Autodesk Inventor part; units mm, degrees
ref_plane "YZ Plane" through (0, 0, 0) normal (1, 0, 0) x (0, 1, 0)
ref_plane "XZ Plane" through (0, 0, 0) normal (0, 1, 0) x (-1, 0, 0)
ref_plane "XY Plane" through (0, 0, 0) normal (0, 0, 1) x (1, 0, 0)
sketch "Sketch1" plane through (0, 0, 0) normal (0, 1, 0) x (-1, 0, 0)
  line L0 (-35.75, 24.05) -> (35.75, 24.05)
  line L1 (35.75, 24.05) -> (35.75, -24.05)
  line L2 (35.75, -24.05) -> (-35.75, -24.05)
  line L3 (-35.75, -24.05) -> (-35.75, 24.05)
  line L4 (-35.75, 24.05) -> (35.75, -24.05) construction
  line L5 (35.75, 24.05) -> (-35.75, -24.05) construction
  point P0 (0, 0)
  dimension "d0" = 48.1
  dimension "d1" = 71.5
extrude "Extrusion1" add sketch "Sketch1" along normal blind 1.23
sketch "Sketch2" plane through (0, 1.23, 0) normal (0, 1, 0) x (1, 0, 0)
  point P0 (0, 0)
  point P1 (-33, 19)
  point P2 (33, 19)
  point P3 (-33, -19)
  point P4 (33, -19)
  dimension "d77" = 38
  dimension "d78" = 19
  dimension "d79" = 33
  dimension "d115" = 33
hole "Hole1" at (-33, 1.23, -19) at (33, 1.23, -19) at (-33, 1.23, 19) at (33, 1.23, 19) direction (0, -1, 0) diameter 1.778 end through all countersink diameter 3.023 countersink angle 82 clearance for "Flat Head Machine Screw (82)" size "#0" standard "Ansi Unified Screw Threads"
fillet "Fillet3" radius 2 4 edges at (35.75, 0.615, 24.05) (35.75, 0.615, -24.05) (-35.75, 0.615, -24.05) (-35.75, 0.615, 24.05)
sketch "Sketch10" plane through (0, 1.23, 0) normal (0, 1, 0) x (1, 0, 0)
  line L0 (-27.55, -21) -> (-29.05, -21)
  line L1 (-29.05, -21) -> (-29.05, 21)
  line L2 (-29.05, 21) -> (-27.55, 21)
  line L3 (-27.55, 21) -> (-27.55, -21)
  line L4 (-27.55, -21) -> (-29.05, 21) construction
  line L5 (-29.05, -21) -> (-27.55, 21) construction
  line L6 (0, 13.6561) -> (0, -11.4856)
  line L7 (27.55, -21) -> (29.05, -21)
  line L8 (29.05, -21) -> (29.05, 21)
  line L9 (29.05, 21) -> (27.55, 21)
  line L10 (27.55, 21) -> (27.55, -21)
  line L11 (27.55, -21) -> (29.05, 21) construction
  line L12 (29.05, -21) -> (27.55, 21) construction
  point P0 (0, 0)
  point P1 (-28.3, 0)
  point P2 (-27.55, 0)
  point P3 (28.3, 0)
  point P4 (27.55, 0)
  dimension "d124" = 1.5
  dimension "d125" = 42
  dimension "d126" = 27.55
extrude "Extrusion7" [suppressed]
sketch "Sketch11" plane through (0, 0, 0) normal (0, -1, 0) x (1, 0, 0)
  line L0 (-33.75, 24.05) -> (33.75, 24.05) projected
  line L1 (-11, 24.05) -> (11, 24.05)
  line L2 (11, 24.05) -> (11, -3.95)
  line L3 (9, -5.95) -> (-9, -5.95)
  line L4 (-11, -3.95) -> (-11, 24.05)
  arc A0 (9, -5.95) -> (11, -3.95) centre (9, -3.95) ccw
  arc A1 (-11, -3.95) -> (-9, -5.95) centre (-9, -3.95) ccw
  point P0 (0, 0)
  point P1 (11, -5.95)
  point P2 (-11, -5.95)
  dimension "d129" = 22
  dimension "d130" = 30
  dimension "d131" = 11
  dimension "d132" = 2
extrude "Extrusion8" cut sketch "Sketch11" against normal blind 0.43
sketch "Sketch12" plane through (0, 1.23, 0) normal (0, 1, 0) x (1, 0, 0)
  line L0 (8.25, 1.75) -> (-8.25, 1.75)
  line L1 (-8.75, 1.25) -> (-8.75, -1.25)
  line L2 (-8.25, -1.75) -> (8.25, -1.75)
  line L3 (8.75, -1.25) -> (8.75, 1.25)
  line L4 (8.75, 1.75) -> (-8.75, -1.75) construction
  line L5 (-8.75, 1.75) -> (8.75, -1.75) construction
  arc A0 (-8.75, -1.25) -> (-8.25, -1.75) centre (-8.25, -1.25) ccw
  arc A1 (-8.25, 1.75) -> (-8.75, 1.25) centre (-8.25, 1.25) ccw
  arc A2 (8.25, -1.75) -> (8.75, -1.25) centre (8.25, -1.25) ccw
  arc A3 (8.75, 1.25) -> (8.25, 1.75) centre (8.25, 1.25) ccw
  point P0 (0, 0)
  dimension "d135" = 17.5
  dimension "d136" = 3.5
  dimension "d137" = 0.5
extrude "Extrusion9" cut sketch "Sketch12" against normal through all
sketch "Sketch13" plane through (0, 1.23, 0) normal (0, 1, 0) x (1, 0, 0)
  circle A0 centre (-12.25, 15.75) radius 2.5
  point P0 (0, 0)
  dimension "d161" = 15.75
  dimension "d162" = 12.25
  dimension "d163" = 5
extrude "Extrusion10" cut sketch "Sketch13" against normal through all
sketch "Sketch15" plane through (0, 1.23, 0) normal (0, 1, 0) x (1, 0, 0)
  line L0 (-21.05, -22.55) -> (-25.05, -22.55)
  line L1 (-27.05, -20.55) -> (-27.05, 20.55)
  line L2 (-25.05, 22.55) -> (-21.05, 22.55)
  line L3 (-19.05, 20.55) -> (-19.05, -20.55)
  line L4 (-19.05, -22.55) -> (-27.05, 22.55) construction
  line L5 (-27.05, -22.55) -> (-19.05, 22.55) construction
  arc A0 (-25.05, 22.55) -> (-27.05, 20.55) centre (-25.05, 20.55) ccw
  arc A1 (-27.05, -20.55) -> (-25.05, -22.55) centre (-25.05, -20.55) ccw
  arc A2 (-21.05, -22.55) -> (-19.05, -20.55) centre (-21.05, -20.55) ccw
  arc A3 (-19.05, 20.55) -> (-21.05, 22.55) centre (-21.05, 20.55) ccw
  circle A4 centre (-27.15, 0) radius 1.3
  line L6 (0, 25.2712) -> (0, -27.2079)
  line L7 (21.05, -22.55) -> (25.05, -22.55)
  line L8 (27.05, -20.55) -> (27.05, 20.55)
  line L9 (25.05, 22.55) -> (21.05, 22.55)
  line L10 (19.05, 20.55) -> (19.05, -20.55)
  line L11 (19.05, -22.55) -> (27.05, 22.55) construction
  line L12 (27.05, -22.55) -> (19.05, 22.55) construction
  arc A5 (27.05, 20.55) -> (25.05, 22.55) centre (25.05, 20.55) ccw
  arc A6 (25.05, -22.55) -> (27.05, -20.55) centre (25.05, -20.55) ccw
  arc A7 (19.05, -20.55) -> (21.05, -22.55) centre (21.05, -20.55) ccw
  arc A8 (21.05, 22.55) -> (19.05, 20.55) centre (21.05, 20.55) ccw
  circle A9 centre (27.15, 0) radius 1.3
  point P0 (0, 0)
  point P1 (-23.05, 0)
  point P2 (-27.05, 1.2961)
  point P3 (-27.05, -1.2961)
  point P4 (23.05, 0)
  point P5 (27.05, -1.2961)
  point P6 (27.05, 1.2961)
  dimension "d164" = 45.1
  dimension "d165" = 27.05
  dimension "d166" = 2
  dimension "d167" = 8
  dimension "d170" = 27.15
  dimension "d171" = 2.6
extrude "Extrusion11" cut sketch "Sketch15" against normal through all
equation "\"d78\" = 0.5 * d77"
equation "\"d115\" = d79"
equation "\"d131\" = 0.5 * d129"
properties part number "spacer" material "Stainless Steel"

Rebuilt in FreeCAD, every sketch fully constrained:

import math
import FreeCAD as App
import Part
import Sketcher

V = App.Vector


def edges_at(feature, points):
    """Names of the edges that pass closest to the given points."""
    edges = feature.Shape.Edges
    near = lambda p: min(range(len(edges)), key=lambda i: edges[i].distToShape(Part.Vertex(*p))[0])
    return sorted({f"Edge{near(p) + 1}" for p in points})


def add_polygon(sketch, points):
    """Adds a closed chain of lines whose ends are joined by coincident constraints."""
    first, n = sketch.GeometryCount, len(points)
    for a, b in zip(points, points[1:] + points[:1]):
        sketch.addGeometry(Part.LineSegment(App.Vector(*a, 0), App.Vector(*b, 0)), False)
    for i in range(n):
        sketch.addConstraint(Sketcher.Constraint("Coincident", first + i, 2, first + (i + 1) % n, 1))

doc = App.newDocument("Part")
body = doc.addObject("PartDesign::Body", "Body")

# Sketch on XZ plane
sketch1 = body.newObject("Sketcher::SketchObject", "Sketch")
sketch1.AttachmentSupport = (doc.getObject("XZ_Plane"), [""])
sketch1.MapMode = "FlatFace"
add_polygon(sketch1, [(-35.75, 24.05), (35.75, 24.05), (35.75, -24.05), (-35.75, -24.05)])  # lines 0-3
sketch1.addConstraint(Sketcher.Constraint("Horizontal", 0))
sketch1.addConstraint(Sketcher.Constraint("Vertical", 1))
sketch1.addConstraint(Sketcher.Constraint("Horizontal", 2))
sketch1.addConstraint(Sketcher.Constraint("Vertical", 3))
sketch1.addConstraint(Sketcher.Constraint("Symmetric", 0, 2, 2, 2, -1, 1))
sketch1.addConstraint(Sketcher.Constraint("DistanceX", 0, 1, 0, 2, 71.5))
sketch1.addConstraint(Sketcher.Constraint("DistanceY", 1, 2, 1, 1, 48.1))
pad1 = body.newObject("PartDesign::Pad", "Pad")
pad1.Profile = sketch1
pad1.Length = 1.23
pad1.Reversed = True

# Sketch on XZ plane
sketch2 = body.newObject("Sketcher::SketchObject", "Sketch001")
sketch2.AttachmentSupport = (doc.getObject("XZ_Plane"), [""])
sketch2.MapMode = "FlatFace"
sketch2.AttachmentOffset = App.Placement(V(0, 0, -1.23), App.Rotation())
sketch2.addGeometry(Part.Circle(V(-33, -19, 0), V(0, 0, 1), 0.889), False)
sketch2.addGeometry(Part.Circle(V(33, -19, 0), V(0, 0, 1), 0.889), False)
sketch2.addGeometry(Part.Circle(V(-33, 19, 0), V(0, 0, 1), 0.889), False)
sketch2.addGeometry(Part.Circle(V(33, 19, 0), V(0, 0, 1), 0.889), False)
sketch2.addConstraint(Sketcher.Constraint("Equal", 0, 1))
sketch2.addConstraint(Sketcher.Constraint("Equal", 1, 2))
sketch2.addConstraint(Sketcher.Constraint("Equal", 2, 3))
sketch2.addConstraint(Sketcher.Constraint("Symmetric", 1, 3, 2, 3, -1, 1))
sketch2.addConstraint(Sketcher.Constraint("Symmetric", 0, 3, 3, 3, -1, 1))
sketch2.addConstraint(Sketcher.Constraint("Symmetric", 0, 3, 1, 3, -2))
sketch2.addConstraint(Sketcher.Constraint("Diameter", 0, 1.778))
sketch2.addConstraint(Sketcher.Constraint("DistanceX", 0, 3, -1, 1, 33.0))
sketch2.addConstraint(Sketcher.Constraint("DistanceY", 0, 3, -1, 1, 19.0))
doc.recompute()
hole = body.newObject("PartDesign::Hole", "Hole")
hole.Profile = sketch2
hole.ThreadType = "None"
hole.Diameter = 1.778
hole.DepthType = "ThroughAll"
hole.HoleCutType = "Countersink"
hole.HoleCutDiameter = 3.023
hole.HoleCutCountersinkAngle = 82
hole.Reversed = True
doc.recompute()

fillet = body.newObject("PartDesign::Fillet", "Fillet")
fillet.Base = (hole, edges_at(hole, [
    (35.75, 0.615, 24.05),
    (35.75, 0.615, -24.05),
    (-35.75, 0.615, -24.05),
    (-35.75, 0.615, 24.05),
]))
fillet.Radius = 2

# Sketch on XZ plane
sketch3 = body.newObject("Sketcher::SketchObject", "Sketch002")
sketch3.AttachmentSupport = (doc.getObject("XZ_Plane"), [""])
sketch3.MapMode = "FlatFace"
sketch3.addGeometry(Part.LineSegment(V(11, 24.05, 0), V(-11, 24.05, 0)), False)
sketch3.addGeometry(Part.LineSegment(V(-11, 24.05, 0), V(-11, -3.95, 0)), False)
sketch3.addGeometry(Part.ArcOfCircle(Part.Circle(V(-9, -3.95, 0), V(0, 0, 1), 2), math.radians(180), math.radians(270)), False)
sketch3.addGeometry(Part.LineSegment(V(-9, -5.95, 0), V(9, -5.95, 0)), False)
sketch3.addGeometry(Part.ArcOfCircle(Part.Circle(V(9, -3.95, 0), V(0, 0, 1), 2), math.radians(-90), math.radians(0)), False)
sketch3.addGeometry(Part.LineSegment(V(11, -3.95, 0), V(11, 24.05, 0)), False)
sketch3.addConstraint(Sketcher.Constraint("Coincident", 0, 2, 1, 1))
sketch3.addConstraint(Sketcher.Constraint("Tangent", 1, 2, 2, 1))
sketch3.addConstraint(Sketcher.Constraint("Tangent", 2, 2, 3, 1))
sketch3.addConstraint(Sketcher.Constraint("Tangent", 3, 2, 4, 1))
sketch3.addConstraint(Sketcher.Constraint("Tangent", 4, 2, 5, 1))
sketch3.addConstraint(Sketcher.Constraint("Coincident", 5, 2, 0, 1))
sketch3.addConstraint(Sketcher.Constraint("Horizontal", 0))
sketch3.addConstraint(Sketcher.Constraint("Vertical", 1))
sketch3.addConstraint(Sketcher.Constraint("Horizontal", 3))
sketch3.addConstraint(Sketcher.Constraint("Vertical", 5))
sketch3.addConstraint(Sketcher.Constraint("Equal", 2, 4))
sketch3.addConstraint(Sketcher.Constraint("Radius", 2, 2.0))
sketch3.addConstraint(Sketcher.Constraint("DistanceX", 0, 2, 0, 1, 22.0))
sketch3.addConstraint(Sketcher.Constraint("DistanceX", 0, 2, -1, 1, 11.0))
sketch3.addConstraint(Sketcher.Constraint("DistanceY", 2, 2, 0, 2, 30.0))
sketch3.addConstraint(Sketcher.Constraint("DistanceY", 2, 3, -1, 1, 3.95))
pocket1 = body.newObject("PartDesign::Pocket", "Pocket")
pocket1.Profile = sketch3
pocket1.Length = 0.43

# Sketch on XZ plane
sketch4 = body.newObject("Sketcher::SketchObject", "Sketch003")
sketch4.AttachmentSupport = (doc.getObject("XZ_Plane"), [""])
sketch4.MapMode = "FlatFace"
sketch4.AttachmentOffset = App.Placement(V(0, 0, -1.23), App.Rotation())
sketch4.addGeometry(Part.ArcOfCircle(Part.Circle(V(8.25, -1.25, 0), V(0, 0, 1), 0.5), math.radians(-90), math.radians(0)), False)
sketch4.addGeometry(Part.LineSegment(V(8.25, -1.75, 0), V(-8.25, -1.75, 0)), False)
sketch4.addGeometry(Part.ArcOfCircle(Part.Circle(V(-8.25, -1.25, 0), V(0, 0, 1), 0.5), math.radians(180), math.radians(270)), False)
sketch4.addGeometry(Part.LineSegment(V(-8.75, -1.25, 0), V(-8.75, 1.25, 0)), False)
sketch4.addGeometry(Part.ArcOfCircle(Part.Circle(V(-8.25, 1.25, 0), V(0, 0, 1), 0.5), math.radians(90), math.radians(180)), False)
sketch4.addGeometry(Part.LineSegment(V(-8.25, 1.75, 0), V(8.25, 1.75, 0)), False)
sketch4.addGeometry(Part.ArcOfCircle(Part.Circle(V(8.25, 1.25, 0), V(0, 0, 1), 0.5), math.radians(0), math.radians(90)), False)
sketch4.addGeometry(Part.LineSegment(V(8.75, 1.25, 0), V(8.75, -1.25, 0)), False)
sketch4.addConstraint(Sketcher.Constraint("Tangent", 0, 1, 1, 1))
sketch4.addConstraint(Sketcher.Constraint("Tangent", 1, 2, 2, 2))
sketch4.addConstraint(Sketcher.Constraint("Tangent", 2, 1, 3, 1))
sketch4.addConstraint(Sketcher.Constraint("Tangent", 3, 2, 4, 2))
sketch4.addConstraint(Sketcher.Constraint("Tangent", 4, 1, 5, 1))
sketch4.addConstraint(Sketcher.Constraint("Tangent", 5, 2, 6, 2))
sketch4.addConstraint(Sketcher.Constraint("Tangent", 6, 1, 7, 1))
sketch4.addConstraint(Sketcher.Constraint("Tangent", 7, 2, 0, 2))
sketch4.addConstraint(Sketcher.Constraint("Horizontal", 1))
sketch4.addConstraint(Sketcher.Constraint("Vertical", 3))
sketch4.addConstraint(Sketcher.Constraint("Horizontal", 5))
sketch4.addConstraint(Sketcher.Constraint("Vertical", 7))
sketch4.addConstraint(Sketcher.Constraint("Equal", 0, 2))
sketch4.addConstraint(Sketcher.Constraint("Equal", 2, 4))
sketch4.addConstraint(Sketcher.Constraint("Equal", 4, 6))
sketch4.addConstraint(Sketcher.Constraint("Symmetric", 0, 3, 4, 3, -1, 1))
sketch4.addConstraint(Sketcher.Constraint("Radius", 0, 0.5))
sketch4.addConstraint(Sketcher.Constraint("DistanceY", 1, 2, 4, 1, 3.5))
sketch4.addConstraint(Sketcher.Constraint("DistanceX", 1, 2, 1, 1, 16.5))
pocket2 = body.newObject("PartDesign::Pocket", "Pocket001")
pocket2.Profile = sketch4
pocket2.Type = "ThroughAll"
pocket2.Reversed = True

# Sketch on XZ plane
sketch5 = body.newObject("Sketcher::SketchObject", "Sketch004")
sketch5.AttachmentSupport = (doc.getObject("XZ_Plane"), [""])
sketch5.MapMode = "FlatFace"
sketch5.AttachmentOffset = App.Placement(V(0, 0, -1.23), App.Rotation())
sketch5.addGeometry(Part.Circle(V(-12.25, -15.75, 0), V(0, 0, 1), 2.5), False)
sketch5.addConstraint(Sketcher.Constraint("Diameter", 0, 5.0))
sketch5.addConstraint(Sketcher.Constraint("DistanceX", 0, 3, -1, 1, 12.25))
sketch5.addConstraint(Sketcher.Constraint("DistanceY", 0, 3, -1, 1, 15.75))
pocket3 = body.newObject("PartDesign::Pocket", "Pocket002")
pocket3.Profile = sketch5
pocket3.Type = "ThroughAll"
pocket3.Reversed = True

# Sketch on XZ plane
sketch6 = body.newObject("Sketcher::SketchObject", "Sketch005")
sketch6.AttachmentSupport = (doc.getObject("XZ_Plane"), [""])
sketch6.MapMode = "FlatFace"
sketch6.AttachmentOffset = App.Placement(V(0, 0, -1.23), App.Rotation())
sketch6.addGeometry(Part.LineSegment(V(-25.05, 22.55, 0), V(-21.05, 22.55, 0)), False)
sketch6.addGeometry(Part.ArcOfCircle(Part.Circle(V(-21.05, 20.55, 0), V(0, 0, 1), 2), math.radians(0), math.radians(90)), False)
sketch6.addGeometry(Part.LineSegment(V(-19.05, 20.55, 0), V(-19.05, -20.55, 0)), False)
sketch6.addGeometry(Part.ArcOfCircle(Part.Circle(V(-21.05, -20.55, 0), V(0, 0, 1), 2), math.radians(-90), math.radians(0)), False)
sketch6.addGeometry(Part.LineSegment(V(-21.05, -22.55, 0), V(-25.05, -22.55, 0)), False)
sketch6.addGeometry(Part.ArcOfCircle(Part.Circle(V(-25.05, -20.55, 0), V(0, 0, 1), 2), math.radians(180), math.radians(270)), False)
sketch6.addGeometry(Part.LineSegment(V(-27.05, -20.55, 0), V(-27.05, -1.296148, 0)), False)
sketch6.addGeometry(Part.ArcOfCircle(Part.Circle(V(-27.15, 0, 0), V(0, 0, 1), 1.3), math.radians(85.588274), math.radians(274.411726)), False)
sketch6.addGeometry(Part.LineSegment(V(-27.05, 1.296148, 0), V(-27.05, 20.55, 0)), False)
sketch6.addGeometry(Part.ArcOfCircle(Part.Circle(V(-25.05, 20.55, 0), V(0, 0, 1), 2), math.radians(90), math.radians(180)), False)
sketch6.addGeometry(Part.ArcOfCircle(Part.Circle(V(21.05, 20.55, 0), V(0, 0, 1), 2), math.radians(90), math.radians(180)), False)
sketch6.addGeometry(Part.LineSegment(V(21.05, 22.55, 0), V(25.05, 22.55, 0)), False)
sketch6.addGeometry(Part.ArcOfCircle(Part.Circle(V(25.05, 20.55, 0), V(0, 0, 1), 2), math.radians(0), math.radians(90)), False)
sketch6.addGeometry(Part.LineSegment(V(27.05, 20.55, 0), V(27.05, 1.296148, 0)), False)
sketch6.addGeometry(Part.ArcOfCircle(Part.Circle(V(27.15, 0, 0), V(0, 0, 1), 1.3), math.radians(-94.411726), math.radians(94.411726)), False)
sketch6.addGeometry(Part.LineSegment(V(27.05, -1.296148, 0), V(27.05, -20.55, 0)), False)
sketch6.addGeometry(Part.ArcOfCircle(Part.Circle(V(25.05, -20.55, 0), V(0, 0, 1), 2), math.radians(-90), math.radians(0)), False)
sketch6.addGeometry(Part.LineSegment(V(25.05, -22.55, 0), V(21.05, -22.55, 0)), False)
sketch6.addGeometry(Part.ArcOfCircle(Part.Circle(V(21.05, -20.55, 0), V(0, 0, 1), 2), math.radians(180), math.radians(270)), False)
sketch6.addGeometry(Part.LineSegment(V(19.05, -20.55, 0), V(19.05, 20.55, 0)), False)
sketch6.addConstraint(Sketcher.Constraint("Tangent", 0, 2, 1, 2))
sketch6.addConstraint(Sketcher.Constraint("Tangent", 1, 1, 2, 1))
sketch6.addConstraint(Sketcher.Constraint("Tangent", 2, 2, 3, 2))
sketch6.addConstraint(Sketcher.Constraint("Tangent", 3, 1, 4, 1))
sketch6.addConstraint(Sketcher.Constraint("Tangent", 4, 2, 5, 2))
sketch6.addConstraint(Sketcher.Constraint("Tangent", 5, 1, 6, 1))
sketch6.addConstraint(Sketcher.Constraint("Coincident", 6, 2, 7, 2))
sketch6.addConstraint(Sketcher.Constraint("Coincident", 7, 1, 8, 1))
sketch6.addConstraint(Sketcher.Constraint("Tangent", 8, 2, 9, 2))
sketch6.addConstraint(Sketcher.Constraint("Tangent", 9, 1, 0, 1))
sketch6.addConstraint(Sketcher.Constraint("Tangent", 10, 1, 11, 1))
sketch6.addConstraint(Sketcher.Constraint("Tangent", 11, 2, 12, 2))
sketch6.addConstraint(Sketcher.Constraint("Tangent", 12, 1, 13, 1))
sketch6.addConstraint(Sketcher.Constraint("Coincident", 13, 2, 14, 2))
sketch6.addConstraint(Sketcher.Constraint("Coincident", 14, 1, 15, 1))
sketch6.addConstraint(Sketcher.Constraint("Tangent", 15, 2, 16, 2))
sketch6.addConstraint(Sketcher.Constraint("Tangent", 16, 1, 17, 1))
sketch6.addConstraint(Sketcher.Constraint("Tangent", 17, 2, 18, 2))
sketch6.addConstraint(Sketcher.Constraint("Tangent", 18, 1, 19, 1))
sketch6.addConstraint(Sketcher.Constraint("Tangent", 19, 2, 10, 2))
sketch6.addConstraint(Sketcher.Constraint("Horizontal", 0))
sketch6.addConstraint(Sketcher.Constraint("Vertical", 2))
sketch6.addConstraint(Sketcher.Constraint("Horizontal", 4))
sketch6.addConstraint(Sketcher.Constraint("Vertical", 6))
sketch6.addConstraint(Sketcher.Constraint("Vertical", 8))
sketch6.addConstraint(Sketcher.Constraint("Horizontal", 11))
sketch6.addConstraint(Sketcher.Constraint("Vertical", 13))
sketch6.addConstraint(Sketcher.Constraint("Vertical", 15))
sketch6.addConstraint(Sketcher.Constraint("Horizontal", 17))
sketch6.addConstraint(Sketcher.Constraint("Vertical", 19))
sketch6.addConstraint(Sketcher.Constraint("Equal", 1, 3))
sketch6.addConstraint(Sketcher.Constraint("Equal", 3, 5))
sketch6.addConstraint(Sketcher.Constraint("Equal", 5, 9))
sketch6.addConstraint(Sketcher.Constraint("Equal", 9, 10))
sketch6.addConstraint(Sketcher.Constraint("Equal", 10, 12))
sketch6.addConstraint(Sketcher.Constraint("Equal", 7, 14))
sketch6.addConstraint(Sketcher.Constraint("Equal", 12, 16))
sketch6.addConstraint(Sketcher.Constraint("Equal", 16, 18))
sketch6.addConstraint(Sketcher.Constraint("Symmetric", 3, 3, 10, 3, -1, 1))
sketch6.addConstraint(Sketcher.Constraint("Symmetric", 7, 3, 14, 3, -1, 1))
sketch6.addConstraint(Sketcher.Constraint("Symmetric", 9, 3, 16, 3, -1, 1))
sketch6.addConstraint(Sketcher.Constraint("Symmetric", 9, 3, 12, 3, -2))
sketch6.addConstraint(Sketcher.Constraint("Symmetric", 6, 2, 14, 1, -2))
sketch6.addConstraint(Sketcher.Constraint("Radius", 1, 2.0))
sketch6.addConstraint(Sketcher.Constraint("Radius", 7, 1.3))
sketch6.addConstraint(Sketcher.Constraint("DistanceX", 5, 1, 2, 2, 8.0))
sketch6.addConstraint(Sketcher.Constraint("DistanceX", 7, 3, -1, 1, 27.15))
sketch6.addConstraint(Sketcher.Constraint("DistanceX", 5, 1, -1, 1, 27.05))
sketch6.addConstraint(Sketcher.Constraint("DistanceY", 2, 2, 2, 1, 41.1))
pocket4 = body.newObject("PartDesign::Pocket", "Pocket003")
pocket4.Profile = sketch6
pocket4.Type = "ThroughAll"
pocket4.Reversed = True

doc.recompute()
